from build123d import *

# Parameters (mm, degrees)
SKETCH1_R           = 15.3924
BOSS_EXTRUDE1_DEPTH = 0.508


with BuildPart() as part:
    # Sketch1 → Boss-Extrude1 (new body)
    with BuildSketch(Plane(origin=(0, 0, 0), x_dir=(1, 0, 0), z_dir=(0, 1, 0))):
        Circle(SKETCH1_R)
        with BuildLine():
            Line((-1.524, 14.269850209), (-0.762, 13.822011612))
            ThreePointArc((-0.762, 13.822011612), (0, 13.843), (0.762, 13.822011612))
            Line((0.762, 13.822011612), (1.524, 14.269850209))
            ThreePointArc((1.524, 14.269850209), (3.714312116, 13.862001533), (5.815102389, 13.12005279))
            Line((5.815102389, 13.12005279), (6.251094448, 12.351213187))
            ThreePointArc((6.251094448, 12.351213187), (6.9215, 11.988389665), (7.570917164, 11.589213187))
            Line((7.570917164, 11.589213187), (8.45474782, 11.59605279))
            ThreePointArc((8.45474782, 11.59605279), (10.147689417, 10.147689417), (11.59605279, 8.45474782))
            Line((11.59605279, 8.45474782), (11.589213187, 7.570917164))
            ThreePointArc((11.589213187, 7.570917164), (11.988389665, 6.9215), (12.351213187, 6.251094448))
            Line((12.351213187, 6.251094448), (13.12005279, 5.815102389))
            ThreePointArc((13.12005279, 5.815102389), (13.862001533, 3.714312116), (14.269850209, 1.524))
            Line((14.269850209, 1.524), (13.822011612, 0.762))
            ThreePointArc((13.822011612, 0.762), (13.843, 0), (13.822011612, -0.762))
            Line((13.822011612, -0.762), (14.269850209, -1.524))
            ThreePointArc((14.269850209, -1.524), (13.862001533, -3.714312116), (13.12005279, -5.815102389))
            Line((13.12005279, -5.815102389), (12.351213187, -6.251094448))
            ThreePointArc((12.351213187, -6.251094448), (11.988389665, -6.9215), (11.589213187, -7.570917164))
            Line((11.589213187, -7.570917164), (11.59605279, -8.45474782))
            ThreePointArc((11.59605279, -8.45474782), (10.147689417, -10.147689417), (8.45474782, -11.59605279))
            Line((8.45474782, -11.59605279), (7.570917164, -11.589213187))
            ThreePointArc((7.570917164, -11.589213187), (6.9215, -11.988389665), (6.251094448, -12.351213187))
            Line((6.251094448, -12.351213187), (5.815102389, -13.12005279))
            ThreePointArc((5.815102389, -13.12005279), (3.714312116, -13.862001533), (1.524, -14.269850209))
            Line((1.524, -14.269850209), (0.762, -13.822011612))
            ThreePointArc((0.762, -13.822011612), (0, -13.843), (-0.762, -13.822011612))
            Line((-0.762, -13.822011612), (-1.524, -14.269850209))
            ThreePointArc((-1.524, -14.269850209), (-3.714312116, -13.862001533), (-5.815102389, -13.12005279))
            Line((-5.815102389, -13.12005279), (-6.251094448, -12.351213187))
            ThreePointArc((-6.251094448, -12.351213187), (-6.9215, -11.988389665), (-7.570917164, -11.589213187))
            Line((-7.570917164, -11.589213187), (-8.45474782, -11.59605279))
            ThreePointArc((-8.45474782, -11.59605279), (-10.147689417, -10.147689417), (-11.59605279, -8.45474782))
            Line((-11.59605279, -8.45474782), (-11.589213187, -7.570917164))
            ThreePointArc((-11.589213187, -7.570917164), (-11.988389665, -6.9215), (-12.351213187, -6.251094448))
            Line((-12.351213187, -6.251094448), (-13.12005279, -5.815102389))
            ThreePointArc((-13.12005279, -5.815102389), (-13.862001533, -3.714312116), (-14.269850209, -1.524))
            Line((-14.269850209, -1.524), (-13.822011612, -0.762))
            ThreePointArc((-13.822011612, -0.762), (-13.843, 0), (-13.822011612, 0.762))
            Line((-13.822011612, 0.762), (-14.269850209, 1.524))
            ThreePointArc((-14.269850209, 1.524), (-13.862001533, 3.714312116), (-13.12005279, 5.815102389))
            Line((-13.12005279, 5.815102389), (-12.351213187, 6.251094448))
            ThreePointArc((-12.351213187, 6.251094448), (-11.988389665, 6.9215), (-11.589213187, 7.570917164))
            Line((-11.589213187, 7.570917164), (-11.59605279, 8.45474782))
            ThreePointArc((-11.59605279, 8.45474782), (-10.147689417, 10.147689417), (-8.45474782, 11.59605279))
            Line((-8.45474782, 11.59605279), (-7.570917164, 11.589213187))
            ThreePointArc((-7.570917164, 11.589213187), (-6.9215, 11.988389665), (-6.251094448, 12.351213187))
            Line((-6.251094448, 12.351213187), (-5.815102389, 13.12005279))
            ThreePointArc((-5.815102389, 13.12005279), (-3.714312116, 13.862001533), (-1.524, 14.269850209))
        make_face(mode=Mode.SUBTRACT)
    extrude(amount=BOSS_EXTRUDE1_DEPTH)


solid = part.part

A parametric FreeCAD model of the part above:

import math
import FreeCAD as App
import Part
import Sketcher
from FreeCAD import Vector
Q = App.Units.Quantity

doc = App.newDocument("Part")
body = doc.addObject("PartDesign::Body", "Body")

sketch1 = doc.addObject("Sketcher::SketchObject", "Sketch")
body.addObject(sketch1)
sketch1.AttachmentSupport = (doc.XZ_Plane, [""])
sketch1.MapMode = "FlatFace"
sketch1.addGeometry([
    Part.Circle(Vector(0, 0, 0), Vector(0, 0, 1), 15.4),
    Part.ArcOfCircle(Part.Circle(Vector(0, 0, 0), Vector(0, 0, 1), 14.4), math.radians(-113.9), math.radians(-96.1)),
    Part.LineSegment(Vector(-1.5, -14.3, 0), Vector(-0.8, -13.8, 0)),
    Part.ArcOfCircle(Part.Circle(Vector(0, 0, 0), Vector(0, 0, 1), 13.8), math.radians(-93.16), math.radians(-86.84)),
    Part.LineSegment(Vector(0.8, -13.8, 0), Vector(1.5, -14.3, 0)),
    Part.ArcOfCircle(Part.Circle(Vector(0, 0, 0), Vector(0, 0, 1), 14.4), math.radians(-83.9), math.radians(-66.1)),
    Part.LineSegment(Vector(5.8, -13.1, 0), Vector(6.3, -12.4, 0)),
    Part.ArcOfCircle(Part.Circle(Vector(0, 0, 0), Vector(0, 0, 1), 13.8), math.radians(-63.16), math.radians(-56.84)),
    Part.LineSegment(Vector(7.6, -11.6, 0), Vector(8.5, -11.6, 0)),
    Part.ArcOfCircle(Part.Circle(Vector(0, 0, 0), Vector(0, 0, 1), 14.4), math.radians(-53.9), math.radians(-36.1)),
    Part.LineSegment(Vector(11.6, -8.5, 0), Vector(11.6, -7.6, 0)),
    Part.ArcOfCircle(Part.Circle(Vector(0, 0, 0), Vector(0, 0, 1), 13.8), math.radians(-33.16), math.radians(-26.84)),
    Part.LineSegment(Vector(12.4, -6.3, 0), Vector(13.1, -5.8, 0)),
    Part.ArcOfCircle(Part.Circle(Vector(0, 0, 0), Vector(0, 0, 1), 14.4), math.radians(-23.9), math.radians(-6.1)),
    Part.LineSegment(Vector(14.3, -1.5, 0), Vector(13.8, -0.8, 0)),
    Part.ArcOfCircle(Part.Circle(Vector(0, 0, 0), Vector(0, 0, 1), 13.8), math.radians(-3.16), math.radians(3.16)),
    Part.LineSegment(Vector(13.8, 0.8, 0), Vector(14.3, 1.5, 0)),
    Part.ArcOfCircle(Part.Circle(Vector(0, 0, 0), Vector(0, 0, 1), 14.4), math.radians(6.1), math.radians(23.9)),
    Part.LineSegment(Vector(13.1, 5.8, 0), Vector(12.4, 6.3, 0)),
    Part.ArcOfCircle(Part.Circle(Vector(0, 0, 0), Vector(0, 0, 1), 13.8), math.radians(26.84), math.radians(33.16)),
    Part.LineSegment(Vector(11.6, 7.6, 0), Vector(11.6, 8.5, 0)),
    Part.ArcOfCircle(Part.Circle(Vector(0, 0, 0), Vector(0, 0, 1), 14.4), math.radians(36.1), math.radians(53.9)),
    Part.LineSegment(Vector(8.5, 11.6, 0), Vector(7.6, 11.6, 0)),
    Part.ArcOfCircle(Part.Circle(Vector(0, 0, 0), Vector(0, 0, 1), 13.8), math.radians(56.84), math.radians(63.16)),
    Part.LineSegment(Vector(6.3, 12.4, 0), Vector(5.8, 13.1, 0)),
    Part.ArcOfCircle(Part.Circle(Vector(0, 0, 0), Vector(0, 0, 1), 14.4), math.radians(66.1), math.radians(83.9)),
    Part.LineSegment(Vector(1.5, 14.3, 0), Vector(0.8, 13.8, 0)),
    Part.ArcOfCircle(Part.Circle(Vector(0, 0, 0), Vector(0, 0, 1), 13.8), math.radians(86.84), math.radians(93.16)),
    Part.LineSegment(Vector(-0.8, 13.8, 0), Vector(-1.5, 14.3, 0)),
    Part.ArcOfCircle(Part.Circle(Vector(0, 0, 0), Vector(0, 0, 1), 14.4), math.radians(96.1), math.radians(113.9)),
    Part.LineSegment(Vector(-5.8, 13.1, 0), Vector(-6.3, 12.4, 0)),
    Part.ArcOfCircle(Part.Circle(Vector(0, 0, 0), Vector(0, 0, 1), 13.8), math.radians(116.84), math.radians(123.16)),
    Part.LineSegment(Vector(-7.6, 11.6, 0), Vector(-8.5, 11.6, 0)),
    Part.ArcOfCircle(Part.Circle(Vector(0, 0, 0), Vector(0, 0, 1), 14.4), math.radians(126.1), math.radians(143.9)),
    Part.LineSegment(Vector(-11.6, 8.5, 0), Vector(-11.6, 7.6, 0)),
    Part.ArcOfCircle(Part.Circle(Vector(0, 0, 0), Vector(0, 0, 1), 13.8), math.radians(146.84), math.radians(153.16)),
    Part.LineSegment(Vector(-12.4, 6.3, 0), Vector(-13.1, 5.8, 0)),
    Part.ArcOfCircle(Part.Circle(Vector(0, 0, 0), Vector(0, 0, 1), 14.4), math.radians(156.1), math.radians(173.9)),
    Part.LineSegment(Vector(-14.3, 1.5, 0), Vector(-13.8, 0.8, 0)),
    Part.ArcOfCircle(Part.Circle(Vector(0, 0, 0), Vector(0, 0, 1), 13.8), math.radians(176.84), math.radians(183.16)),
    Part.LineSegment(Vector(-13.8, -0.8, 0), Vector(-14.3, -1.5, 0)),
    Part.ArcOfCircle(Part.Circle(Vector(0, 0, 0), Vector(0, 0, 1), 14.4), math.radians(-173.9), math.radians(-156.1)),
    Part.LineSegment(Vector(-13.1, -5.8, 0), Vector(-12.4, -6.3, 0)),
    Part.ArcOfCircle(Part.Circle(Vector(0, 0, 0), Vector(0, 0, 1), 13.8), math.radians(-153.16), math.radians(-146.84)),
    Part.LineSegment(Vector(-11.6, -7.6, 0), Vector(-11.6, -8.5, 0)),
    Part.ArcOfCircle(Part.Circle(Vector(0, 0, 0), Vector(0, 0, 1), 14.4), math.radians(-143.9), math.radians(-126.1)),
    Part.LineSegment(Vector(-8.5, -11.6, 0), Vector(-7.6, -11.6, 0)),
    Part.ArcOfCircle(Part.Circle(Vector(0, 0, 0), Vector(0, 0, 1), 13.8), math.radians(-123.16), math.radians(-116.84)),
    Part.LineSegment(Vector(-6.3, -12.4, 0), Vector(-5.8, -13.1, 0)),
], False)
sketch1.addConstraint([
    Sketcher.Constraint("Coincident", 1, 2, 2, 1),
    Sketcher.Constraint("Coincident", 2, 2, 3, 1),
    Sketcher.Constraint("Coincident", 3, 2, 4, 1),
    Sketcher.Constraint("Coincident", 4, 2, 5, 1),
    Sketcher.Constraint("Coincident", 5, 2, 6, 1),
    Sketcher.Constraint("Coincident", 6, 2, 7, 1),
    Sketcher.Constraint("Coincident", 7, 2, 8, 1),
    Sketcher.Constraint("Coincident", 8, 2, 9, 1),
    Sketcher.Constraint("Coincident", 9, 2, 10, 1),
    Sketcher.Constraint("Coincident", 10, 2, 11, 1),
    Sketcher.Constraint("Coincident", 11, 2, 12, 1),
    Sketcher.Constraint("Coincident", 12, 2, 13, 1),
    Sketcher.Constraint("Coincident", 13, 2, 14, 1),
    Sketcher.Constraint("Coincident", 14, 2, 15, 1),
    Sketcher.Constraint("Coincident", 15, 2, 16, 1),
    Sketcher.Constraint("Coincident", 16, 2, 17, 1),
    Sketcher.Constraint("Coincident", 17, 2, 18, 1),
    Sketcher.Constraint("Coincident", 18, 2, 19, 1),
    Sketcher.Constraint("Coincident", 19, 2, 20, 1),
    Sketcher.Constraint("Coincident", 20, 2, 21, 1),
    Sketcher.Constraint("Coincident", 21, 2, 22, 1),
    Sketcher.Constraint("Coincident", 22, 2, 23, 1),
    Sketcher.Constraint("Coincident", 23, 2, 24, 1),
    Sketcher.Constraint("Coincident", 24, 2, 25, 1),
    Sketcher.Constraint("Coincident", 25, 2, 26, 1),
    Sketcher.Constraint("Coincident", 26, 2, 27, 1),
    Sketcher.Constraint("Coincident", 27, 2, 28, 1),
    Sketcher.Constraint("Coincident", 28, 2, 29, 1),
    Sketcher.Constraint("Coincident", 29, 2, 30, 1),
    Sketcher.Constraint("Coincident", 30, 2, 31, 1),
    Sketcher.Constraint("Coincident", 31, 2, 32, 1),
    Sketcher.Constraint("Coincident", 32, 2, 33, 1),
    Sketcher.Constraint("Coincident", 33, 2, 34, 1),
    Sketcher.Constraint("Coincident", 34, 2, 35, 1),
    Sketcher.Constraint("Coincident", 35, 2, 36, 1),
    Sketcher.Constraint("Coincident", 36, 2, 37, 1),
    Sketcher.Constraint("Coincident", 37, 2, 38, 1),
    Sketcher.Constraint("Coincident", 38, 2, 39, 1),
    Sketcher.Constraint("Coincident", 39, 2, 40, 1),
    Sketcher.Constraint("Coincident", 40, 2, 41, 1),
    Sketcher.Constraint("Coincident", 41, 2, 42, 1),
    Sketcher.Constraint("Coincident", 42, 2, 43, 1),
    Sketcher.Constraint("Coincident", 43, 2, 44, 1),
    Sketcher.Constraint("Coincident", 44, 2, 45, 1),
    Sketcher.Constraint("Coincident", 45, 2, 46, 1),
    Sketcher.Constraint("Coincident", 46, 2, 47, 1),
    Sketcher.Constraint("Coincident", 47, 2, 48, 1),
    Sketcher.Constraint("Coincident", 48, 2, 1, 1),
    Sketcher.Constraint("Coincident", 0, 3, -1, 1),
    Sketcher.Constraint("Coincident", 1, 3, -1, 1),
    Sketcher.Constraint("Coincident", 3, 3, -1, 1),
    Sketcher.Constraint("Coincident", 5, 3, -1, 1),
    Sketcher.Constraint("Coincident", 7, 3, -1, 1),
    Sketcher.Constraint("Coincident", 9, 3, -1, 1),
    Sketcher.Constraint("Coincident", 11, 3, -1, 1),
    Sketcher.Constraint("Coincident", 13, 3, -1, 1),
    Sketcher.Constraint("Coincident", 15, 3, -1, 1),
    Sketcher.Constraint("Coincident", 17, 3, -1, 1),
    Sketcher.Constraint("Coincident", 19, 3, -1, 1),
    Sketcher.Constraint("Coincident", 21, 3, -1, 1),
    Sketcher.Constraint("Coincident", 23, 3, -1, 1),
    Sketcher.Constraint("Coincident", 25, 3, -1, 1),
    Sketcher.Constraint("Coincident", 27, 3, -1, 1),
    Sketcher.Constraint("Coincident", 29, 3, -1, 1),
    Sketcher.Constraint("Coincident", 31, 3, -1, 1),
    Sketcher.Constraint("Coincident", 33, 3, -1, 1),
    Sketcher.Constraint("Coincident", 35, 3, -1, 1),
    Sketcher.Constraint("Coincident", 37, 3, -1, 1),
    Sketcher.Constraint("Coincident", 39, 3, -1, 1),
    Sketcher.Constraint("Coincident", 41, 3, -1, 1),
    Sketcher.Constraint("Coincident", 43, 3, -1, 1),
    Sketcher.Constraint("Coincident", 45, 3, -1, 1),
    Sketcher.Constraint("Coincident", 47, 3, -1, 1),
    Sketcher.Constraint("Equal", 1, 5),
    Sketcher.Constraint("Equal", 3, 7),
    Sketcher.Constraint("Equal", 5, 9),
    Sketcher.Constraint("Equal", 7, 11),
    Sketcher.Constraint("Equal", 9, 13),
    Sketcher.Constraint("Equal", 11, 15),
    Sketcher.Constraint("Equal", 13, 17),
    Sketcher.Constraint("Equal", 15, 19),
    Sketcher.Constraint("Equal", 17, 21),
    Sketcher.Constraint("Equal", 19, 23),
    Sketcher.Constraint("Equal", 21, 25),
    Sketcher.Constraint("Equal", 23, 27),
    Sketcher.Constraint("Equal", 25, 29),
    Sketcher.Constraint("Equal", 27, 31),
    Sketcher.Constraint("Equal", 29, 33),
    Sketcher.Constraint("Equal", 31, 35),
    Sketcher.Constraint("Equal", 33, 37),
    Sketcher.Constraint("Equal", 35, 39),
    Sketcher.Constraint("Equal", 37, 41),
    Sketcher.Constraint("Equal", 39, 43),
    Sketcher.Constraint("Equal", 41, 45),
    Sketcher.Constraint("Equal", 43, 47),
    Sketcher.Constraint("Perpendicular", 2, 14),
    Sketcher.Constraint("Perpendicular", 4, 16),
    Sketcher.Constraint("Perpendicular", 6, 18),
    Sketcher.Constraint("Perpendicular", 8, 20),
    Sketcher.Constraint("Perpendicular", 10, 22),
    Sketcher.Constraint("Perpendicular", 12, 24),
    Sketcher.Constraint("Perpendicular", 14, 26),
    Sketcher.Constraint("Perpendicular", 16, 28),
    Sketcher.Constraint("Perpendicular", 18, 30),
    Sketcher.Constraint("Perpendicular", 20, 32),
    Sketcher.Constraint("Perpendicular", 22, 34),
    Sketcher.Constraint("Perpendicular", 24, 36),
    Sketcher.Constraint("Perpendicular", 26, 38),
    Sketcher.Constraint("Perpendicular", 28, 40),
    Sketcher.Constraint("Perpendicular", 30, 42),
    Sketcher.Constraint("Perpendicular", 32, 44),
    Sketcher.Constraint("Perpendicular", 34, 46),
    Sketcher.Constraint("Perpendicular", 36, 48),
    Sketcher.Constraint("Horizontal", 2, 2, 3, 2),
    Sketcher.Constraint("Horizontal", 1, 2, 4, 2),
    Sketcher.Constraint("Horizontal", 26, 2, 27, 2),
    Sketcher.Constraint("Horizontal", 24, 2, 29, 2),
    Sketcher.Constraint("Horizontal", 23, 2, 30, 2),
    Sketcher.Constraint("Horizontal", 22, 2, 31, 2),
    Sketcher.Constraint("Horizontal", 21, 2, 32, 2),
    Sketcher.Constraint("Horizontal", 20, 2, 33, 2),
    Sketcher.Constraint("Horizontal", 18, 2, 35, 2),
    Sketcher.Constraint("Horizontal", 16, 2, 37, 2),
    Sketcher.Constraint("Horizontal", 14, 2, 39, 2),
    Sketcher.Constraint("Horizontal", 12, 2, 41, 2),
    Sketcher.Constraint("Horizontal", 10, 2, 43, 2),
    Sketcher.Constraint("Horizontal", 8, 2, 45, 2),
    Sketcher.Constraint("Horizontal", 6, 2, 47, 2),
    Sketcher.Constraint("Vertical", 14, 2, 15, 2),
    Sketcher.Constraint("Vertical", 12, 2, 17, 2),
    Sketcher.Constraint("Vertical", 10, 2, 19, 2),
    Sketcher.Constraint("Vertical", 8, 2, 21, 2),
    Sketcher.Constraint("Vertical", 6, 2, 23, 2),
    Sketcher.Constraint("Vertical", 4, 2, 25, 2),
    Sketcher.Constraint("Equal", 4, 6),
    Sketcher.Constraint("Equal", 6, 8),
    Sketcher.Constraint("Equal", 8, 10),
    Sketcher.Constraint("Equal", 10, 12),
    Sketcher.Constraint("Equal", 12, 14),
    Sketcher.Constraint("Diameter", 0, Q("1.212 in")),
    Sketcher.Constraint("Radius", 1, Q("0.565 in")),
    Sketcher.Constraint("Radius", 3, Q("0.545 in")),
    Sketcher.Constraint("DistanceX", 1, 2, -1, 1, Q("0.06 in")),
    Sketcher.Constraint("DistanceX", 2, 2, -1, 1, Q("0.03 in")),
    Sketcher.Constraint("DistanceX", -1, 1, 5, 2, Q("5.815102 mm")),
    Sketcher.Constraint("DistanceX", -1, 1, 7, 2, Q("7.570917 mm")),
])
pad1 = doc.addObject("PartDesign::Pad", "Pad")
body.addObject(pad1)
pad1.Profile = sketch1
pad1.Length = Q("0.02 in")
pad1.Reversed = True

doc.recompute()
